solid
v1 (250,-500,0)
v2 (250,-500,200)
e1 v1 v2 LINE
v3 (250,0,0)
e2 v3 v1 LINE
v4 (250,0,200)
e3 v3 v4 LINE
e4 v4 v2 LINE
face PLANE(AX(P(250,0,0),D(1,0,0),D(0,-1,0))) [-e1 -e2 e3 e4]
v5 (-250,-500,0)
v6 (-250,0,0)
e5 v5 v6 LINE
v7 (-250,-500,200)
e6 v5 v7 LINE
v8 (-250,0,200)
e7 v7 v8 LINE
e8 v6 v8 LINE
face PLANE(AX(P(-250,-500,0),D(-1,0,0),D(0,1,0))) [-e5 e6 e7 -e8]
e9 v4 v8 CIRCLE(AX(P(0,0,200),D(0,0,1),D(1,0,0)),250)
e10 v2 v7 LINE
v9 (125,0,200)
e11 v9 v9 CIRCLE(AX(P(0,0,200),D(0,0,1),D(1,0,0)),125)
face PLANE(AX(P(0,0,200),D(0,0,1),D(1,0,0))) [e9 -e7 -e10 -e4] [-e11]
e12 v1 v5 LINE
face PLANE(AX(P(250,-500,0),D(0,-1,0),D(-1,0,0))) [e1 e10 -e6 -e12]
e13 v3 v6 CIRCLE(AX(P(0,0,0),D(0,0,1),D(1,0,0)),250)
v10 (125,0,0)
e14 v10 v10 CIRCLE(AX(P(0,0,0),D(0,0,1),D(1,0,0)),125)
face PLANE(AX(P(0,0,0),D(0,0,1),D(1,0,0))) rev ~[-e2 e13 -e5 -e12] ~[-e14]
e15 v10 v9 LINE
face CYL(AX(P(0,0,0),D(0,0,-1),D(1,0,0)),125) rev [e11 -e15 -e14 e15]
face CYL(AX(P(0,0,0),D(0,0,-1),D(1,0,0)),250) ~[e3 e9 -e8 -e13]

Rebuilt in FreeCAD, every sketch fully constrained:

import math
import FreeCAD as App
import Part
import Sketcher

V = App.Vector
Q = App.Units.Quantity

doc = App.newDocument("Part")
params = doc.addObject("Spreadsheet::Sheet", "Params")
for row, (alias, value) in enumerate([
    ("sketch1_diameter", "250 mm"),
    ("sketch1_radius", "250 mm"),
    ("pad1_length", "200 mm"),
], start=1):
    params.set(f"A{row}", alias)
    params.set(f"B{row}", "=" + value)
    params.setAlias(f"B{row}", alias)

body = doc.addObject("PartDesign::Body", "Body")

sketch1 = doc.addObject("Sketcher::SketchObject", "Sketch")
body.addObject(sketch1)
sketch1.AttachmentSupport = (doc.XY_Plane, [""])
sketch1.MapMode = "FlatFace"
sketch1.addGeometry(Part.ArcOfCircle(Part.Circle(V(0, 0, 0), V(0, 0, 1), 250), math.radians(0), math.radians(180)), False)
sketch1.addGeometry(Part.LineSegment(V(-250, 0, 0), V(-250, -500, 0)), False)
sketch1.addGeometry(Part.LineSegment(V(-250, -500, 0), V(250, -500, 0)), False)
sketch1.addGeometry(Part.LineSegment(V(250, -500, 0), V(250, 0, 0)), False)
sketch1.addGeometry(Part.Circle(V(0, 0, 0), V(0, 0, 1), 125), False)
sketch1.addConstraint(Sketcher.Constraint("Tangent", 0, 2, 1, 1))
sketch1.addConstraint(Sketcher.Constraint("Coincident", 1, 2, 2, 1))
sketch1.addConstraint(Sketcher.Constraint("Coincident", 2, 2, 3, 1))
sketch1.addConstraint(Sketcher.Constraint("Tangent", 3, 2, 0, 1))
sketch1.addConstraint(Sketcher.Constraint("Vertical", 1))
sketch1.addConstraint(Sketcher.Constraint("Horizontal", 2))
sketch1.addConstraint(Sketcher.Constraint("Vertical", 3))
sketch1.addConstraint(Sketcher.Constraint("Coincident", 0, 3, -1, 1))
sketch1.addConstraint(Sketcher.Constraint("Coincident", 4, 3, -1, 1))
sketch1.addConstraint(Sketcher.Constraint("Equal", 2, 1))
sketch1.addConstraint(Sketcher.Constraint("Diameter", 4, Q("250 mm")))
sketch1.addConstraint(Sketcher.Constraint("Radius", 0, Q("250 mm")))
sketch1.setExpression("Constraints[10]", "Params.sketch1_diameter")
sketch1.setExpression("Constraints[11]", "Params.sketch1_radius")
pad1 = doc.addObject("PartDesign::Pad", "Pad")
body.addObject(pad1)
pad1.Profile = sketch1
pad1.setExpression("Length", "Params.pad1_length")

doc.recompute()
